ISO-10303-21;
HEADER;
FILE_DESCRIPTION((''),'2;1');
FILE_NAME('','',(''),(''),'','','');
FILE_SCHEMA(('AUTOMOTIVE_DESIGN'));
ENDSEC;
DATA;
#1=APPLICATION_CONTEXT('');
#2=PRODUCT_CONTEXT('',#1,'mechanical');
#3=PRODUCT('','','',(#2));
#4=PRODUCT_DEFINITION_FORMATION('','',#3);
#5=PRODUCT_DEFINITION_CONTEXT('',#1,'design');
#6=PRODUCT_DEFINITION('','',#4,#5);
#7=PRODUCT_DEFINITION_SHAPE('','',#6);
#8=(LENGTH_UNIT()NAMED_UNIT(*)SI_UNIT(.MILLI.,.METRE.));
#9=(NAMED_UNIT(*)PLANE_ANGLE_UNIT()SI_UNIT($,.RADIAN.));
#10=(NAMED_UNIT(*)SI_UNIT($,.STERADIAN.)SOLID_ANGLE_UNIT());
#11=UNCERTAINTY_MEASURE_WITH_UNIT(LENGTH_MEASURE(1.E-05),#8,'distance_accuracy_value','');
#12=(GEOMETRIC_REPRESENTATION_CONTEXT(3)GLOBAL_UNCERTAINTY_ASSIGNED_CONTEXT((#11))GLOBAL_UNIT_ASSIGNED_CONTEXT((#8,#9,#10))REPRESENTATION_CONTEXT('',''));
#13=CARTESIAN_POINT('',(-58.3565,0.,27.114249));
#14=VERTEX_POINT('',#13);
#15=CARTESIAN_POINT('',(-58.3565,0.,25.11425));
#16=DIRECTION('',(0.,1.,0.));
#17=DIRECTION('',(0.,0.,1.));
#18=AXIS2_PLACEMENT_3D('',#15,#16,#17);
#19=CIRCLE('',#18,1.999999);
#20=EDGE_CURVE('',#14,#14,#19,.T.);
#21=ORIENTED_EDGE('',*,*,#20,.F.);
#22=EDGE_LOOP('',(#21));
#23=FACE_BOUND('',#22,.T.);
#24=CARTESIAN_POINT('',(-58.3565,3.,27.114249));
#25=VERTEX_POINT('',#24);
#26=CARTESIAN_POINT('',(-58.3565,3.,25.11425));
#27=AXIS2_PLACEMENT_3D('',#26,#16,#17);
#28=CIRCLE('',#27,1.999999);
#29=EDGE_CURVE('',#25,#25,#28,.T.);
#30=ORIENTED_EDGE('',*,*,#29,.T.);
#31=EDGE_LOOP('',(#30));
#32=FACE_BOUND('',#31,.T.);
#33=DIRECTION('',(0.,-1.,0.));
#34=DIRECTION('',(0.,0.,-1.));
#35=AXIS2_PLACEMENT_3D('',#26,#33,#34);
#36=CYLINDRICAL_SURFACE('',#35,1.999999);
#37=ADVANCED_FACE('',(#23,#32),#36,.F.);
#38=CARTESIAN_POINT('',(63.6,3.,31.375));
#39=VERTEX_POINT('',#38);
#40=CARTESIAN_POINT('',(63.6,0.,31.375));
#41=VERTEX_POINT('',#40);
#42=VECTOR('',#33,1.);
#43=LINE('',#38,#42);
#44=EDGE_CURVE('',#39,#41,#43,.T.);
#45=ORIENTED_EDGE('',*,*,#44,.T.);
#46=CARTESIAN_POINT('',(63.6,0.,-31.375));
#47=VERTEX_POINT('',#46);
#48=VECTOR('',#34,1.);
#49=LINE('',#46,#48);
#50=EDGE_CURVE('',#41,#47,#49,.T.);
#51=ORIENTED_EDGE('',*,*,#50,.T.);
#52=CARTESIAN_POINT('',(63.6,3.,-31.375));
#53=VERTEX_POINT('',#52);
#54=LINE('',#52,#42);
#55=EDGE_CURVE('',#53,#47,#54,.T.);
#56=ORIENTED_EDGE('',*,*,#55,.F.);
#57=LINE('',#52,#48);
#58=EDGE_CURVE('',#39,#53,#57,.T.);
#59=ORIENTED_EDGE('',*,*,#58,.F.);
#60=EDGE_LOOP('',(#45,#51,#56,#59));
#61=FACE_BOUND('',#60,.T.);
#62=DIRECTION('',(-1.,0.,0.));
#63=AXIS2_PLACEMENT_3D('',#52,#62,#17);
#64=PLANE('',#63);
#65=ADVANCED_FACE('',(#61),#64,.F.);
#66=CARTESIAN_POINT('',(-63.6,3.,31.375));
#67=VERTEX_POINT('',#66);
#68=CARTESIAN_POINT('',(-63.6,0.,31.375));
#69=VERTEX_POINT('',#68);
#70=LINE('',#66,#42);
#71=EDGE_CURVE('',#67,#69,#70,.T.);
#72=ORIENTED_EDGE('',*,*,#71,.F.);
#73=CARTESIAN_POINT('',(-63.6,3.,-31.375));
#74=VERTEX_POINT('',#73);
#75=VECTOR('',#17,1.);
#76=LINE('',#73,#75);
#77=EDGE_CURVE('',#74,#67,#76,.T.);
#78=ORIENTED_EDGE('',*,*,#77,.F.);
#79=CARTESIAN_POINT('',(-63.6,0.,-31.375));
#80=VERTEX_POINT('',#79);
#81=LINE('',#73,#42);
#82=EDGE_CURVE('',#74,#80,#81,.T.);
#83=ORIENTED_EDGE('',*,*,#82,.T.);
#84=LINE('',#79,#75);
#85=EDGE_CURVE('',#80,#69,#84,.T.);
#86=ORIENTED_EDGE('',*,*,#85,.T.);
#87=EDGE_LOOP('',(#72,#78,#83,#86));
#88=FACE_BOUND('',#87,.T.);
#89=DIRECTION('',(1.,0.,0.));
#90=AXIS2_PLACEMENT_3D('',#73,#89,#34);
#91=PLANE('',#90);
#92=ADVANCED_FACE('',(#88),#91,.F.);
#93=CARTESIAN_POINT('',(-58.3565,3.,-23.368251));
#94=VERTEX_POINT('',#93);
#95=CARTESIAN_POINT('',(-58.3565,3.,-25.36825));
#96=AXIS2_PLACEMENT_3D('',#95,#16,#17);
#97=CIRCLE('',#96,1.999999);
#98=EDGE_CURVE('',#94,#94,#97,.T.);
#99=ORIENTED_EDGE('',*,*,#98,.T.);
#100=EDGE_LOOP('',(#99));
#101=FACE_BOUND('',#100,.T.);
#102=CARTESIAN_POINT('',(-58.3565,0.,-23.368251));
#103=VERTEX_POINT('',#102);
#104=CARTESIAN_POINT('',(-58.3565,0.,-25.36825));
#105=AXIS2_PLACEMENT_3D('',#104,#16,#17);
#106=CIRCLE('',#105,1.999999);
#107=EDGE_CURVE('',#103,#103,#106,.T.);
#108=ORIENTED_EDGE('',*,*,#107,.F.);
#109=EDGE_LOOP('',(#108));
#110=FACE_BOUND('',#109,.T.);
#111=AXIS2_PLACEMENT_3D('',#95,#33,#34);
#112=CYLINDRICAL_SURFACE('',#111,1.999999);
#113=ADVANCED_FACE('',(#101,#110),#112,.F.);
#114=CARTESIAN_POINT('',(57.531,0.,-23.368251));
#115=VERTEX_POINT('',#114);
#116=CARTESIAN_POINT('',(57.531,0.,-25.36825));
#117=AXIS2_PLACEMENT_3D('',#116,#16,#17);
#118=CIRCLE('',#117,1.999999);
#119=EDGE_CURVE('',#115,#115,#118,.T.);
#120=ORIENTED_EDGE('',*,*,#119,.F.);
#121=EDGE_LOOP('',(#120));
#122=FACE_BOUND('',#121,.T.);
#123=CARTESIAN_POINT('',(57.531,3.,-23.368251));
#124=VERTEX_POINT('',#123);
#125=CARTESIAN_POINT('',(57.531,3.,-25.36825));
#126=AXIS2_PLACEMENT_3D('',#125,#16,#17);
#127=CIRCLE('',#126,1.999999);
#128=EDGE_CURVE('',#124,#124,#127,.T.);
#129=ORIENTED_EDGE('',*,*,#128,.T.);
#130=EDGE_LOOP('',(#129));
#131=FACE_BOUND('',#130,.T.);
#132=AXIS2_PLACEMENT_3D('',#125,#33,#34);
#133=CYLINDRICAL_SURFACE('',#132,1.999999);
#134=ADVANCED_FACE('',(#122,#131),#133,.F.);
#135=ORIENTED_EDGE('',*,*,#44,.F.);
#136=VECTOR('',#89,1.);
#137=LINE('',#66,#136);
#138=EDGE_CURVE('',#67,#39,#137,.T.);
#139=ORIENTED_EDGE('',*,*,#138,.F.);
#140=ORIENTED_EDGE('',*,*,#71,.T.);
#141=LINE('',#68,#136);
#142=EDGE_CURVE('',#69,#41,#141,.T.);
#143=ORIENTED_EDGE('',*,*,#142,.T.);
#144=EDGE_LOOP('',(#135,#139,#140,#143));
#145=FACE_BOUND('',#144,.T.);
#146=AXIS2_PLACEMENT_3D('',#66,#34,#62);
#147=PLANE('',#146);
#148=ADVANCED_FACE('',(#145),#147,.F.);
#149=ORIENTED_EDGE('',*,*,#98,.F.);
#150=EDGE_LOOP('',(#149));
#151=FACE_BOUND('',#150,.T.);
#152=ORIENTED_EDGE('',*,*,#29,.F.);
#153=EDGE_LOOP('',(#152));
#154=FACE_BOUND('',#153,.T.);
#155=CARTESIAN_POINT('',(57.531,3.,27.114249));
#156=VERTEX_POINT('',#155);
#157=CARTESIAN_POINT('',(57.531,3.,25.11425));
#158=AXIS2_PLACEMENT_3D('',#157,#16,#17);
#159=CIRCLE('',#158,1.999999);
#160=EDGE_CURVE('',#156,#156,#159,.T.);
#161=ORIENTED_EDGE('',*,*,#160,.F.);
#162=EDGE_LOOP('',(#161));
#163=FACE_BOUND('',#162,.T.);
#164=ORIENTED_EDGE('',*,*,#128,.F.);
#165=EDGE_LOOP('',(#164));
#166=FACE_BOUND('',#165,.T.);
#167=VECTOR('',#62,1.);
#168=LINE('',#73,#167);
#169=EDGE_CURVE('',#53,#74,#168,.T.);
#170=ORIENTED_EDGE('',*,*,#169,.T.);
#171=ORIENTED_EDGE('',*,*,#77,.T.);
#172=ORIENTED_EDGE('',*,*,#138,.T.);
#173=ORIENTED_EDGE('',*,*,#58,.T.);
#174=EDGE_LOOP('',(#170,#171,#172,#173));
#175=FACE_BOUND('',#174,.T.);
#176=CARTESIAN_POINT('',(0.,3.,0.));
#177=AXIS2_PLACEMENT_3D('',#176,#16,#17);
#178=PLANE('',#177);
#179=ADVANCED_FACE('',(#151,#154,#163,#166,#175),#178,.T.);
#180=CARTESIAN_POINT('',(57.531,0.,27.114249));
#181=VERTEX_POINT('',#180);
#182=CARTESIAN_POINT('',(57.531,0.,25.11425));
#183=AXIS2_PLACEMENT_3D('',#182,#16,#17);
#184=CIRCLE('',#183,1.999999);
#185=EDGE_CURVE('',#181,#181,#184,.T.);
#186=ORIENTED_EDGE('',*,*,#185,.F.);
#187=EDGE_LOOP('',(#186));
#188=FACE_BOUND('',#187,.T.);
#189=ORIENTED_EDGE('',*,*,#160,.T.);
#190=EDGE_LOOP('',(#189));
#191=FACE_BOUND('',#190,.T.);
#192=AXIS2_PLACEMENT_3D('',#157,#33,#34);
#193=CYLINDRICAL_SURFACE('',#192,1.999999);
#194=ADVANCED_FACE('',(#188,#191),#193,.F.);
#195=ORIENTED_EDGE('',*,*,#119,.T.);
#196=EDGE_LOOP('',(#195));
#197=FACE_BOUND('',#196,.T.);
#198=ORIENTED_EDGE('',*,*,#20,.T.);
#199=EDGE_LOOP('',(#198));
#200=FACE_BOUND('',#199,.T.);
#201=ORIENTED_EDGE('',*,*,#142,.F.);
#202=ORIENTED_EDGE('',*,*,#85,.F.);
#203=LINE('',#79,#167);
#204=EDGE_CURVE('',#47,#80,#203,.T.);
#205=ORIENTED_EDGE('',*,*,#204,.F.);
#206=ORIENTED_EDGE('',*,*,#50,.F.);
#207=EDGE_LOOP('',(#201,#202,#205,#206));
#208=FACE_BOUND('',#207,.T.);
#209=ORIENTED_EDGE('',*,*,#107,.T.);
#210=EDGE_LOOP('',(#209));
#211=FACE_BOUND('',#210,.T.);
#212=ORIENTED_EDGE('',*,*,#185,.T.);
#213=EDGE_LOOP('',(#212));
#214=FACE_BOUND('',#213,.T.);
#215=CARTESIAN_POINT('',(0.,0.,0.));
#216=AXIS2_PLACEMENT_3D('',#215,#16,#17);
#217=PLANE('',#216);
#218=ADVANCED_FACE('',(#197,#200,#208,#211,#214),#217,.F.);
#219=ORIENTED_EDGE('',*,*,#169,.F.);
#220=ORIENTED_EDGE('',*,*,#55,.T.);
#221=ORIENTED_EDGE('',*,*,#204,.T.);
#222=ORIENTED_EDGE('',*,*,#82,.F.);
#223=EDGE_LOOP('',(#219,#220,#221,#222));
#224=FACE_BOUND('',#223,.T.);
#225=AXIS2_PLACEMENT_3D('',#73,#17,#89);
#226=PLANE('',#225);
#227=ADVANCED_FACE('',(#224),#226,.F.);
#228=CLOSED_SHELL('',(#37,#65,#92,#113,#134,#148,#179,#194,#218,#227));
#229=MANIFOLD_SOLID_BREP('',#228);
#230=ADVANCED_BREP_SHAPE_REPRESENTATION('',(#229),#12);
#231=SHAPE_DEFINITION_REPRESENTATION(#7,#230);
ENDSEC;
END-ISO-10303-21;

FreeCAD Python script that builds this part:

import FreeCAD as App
import Part
import Sketcher

V = App.Vector
Q = App.Units.Quantity


def add_polygon(sketch, points):
    """Adds a closed chain of lines whose ends are joined by coincident constraints."""
    first, n = sketch.GeometryCount, len(points)
    for a, b in zip(points, points[1:] + points[:1]):
        sketch.addGeometry(Part.LineSegment(App.Vector(*a, 0), App.Vector(*b, 0)), False)
    for i in range(n):
        sketch.addConstraint(Sketcher.Constraint("Coincident", first + i, 2, first + (i + 1) % n, 1))

doc = App.newDocument("Part")
body = doc.addObject("PartDesign::Body", "Body")

# Sketch on XZ plane
sketch1 = body.newObject("Sketcher::SketchObject", "Sketch")
sketch1.AttachmentSupport = (doc.getObject("XZ_Plane"), [""])
sketch1.MapMode = "FlatFace"
add_polygon(sketch1, [(-63.6, -31.4), (-63.6, 31.4), (63.6, 31.4), (63.6, -31.4)])  # lines 0-3
sketch1.addGeometry(Part.Circle(V(-58.4, 25.1, 0), V(0, 0, 1), 2), False)  # 4
sketch1.addGeometry(Part.Circle(V(57.5, 25.1, 0), V(0, 0, 1), 2), False)  # 5
sketch1.addGeometry(Part.Circle(V(-58.4, -25.4, 0), V(0, 0, 1), 2), False)  # 6
sketch1.addGeometry(Part.Circle(V(57.5, -25.4, 0), V(0, 0, 1), 2), False)  # 7
sketch1.addConstraint([
    Sketcher.Constraint("Vertical", 0),
    Sketcher.Constraint("Horizontal", 1),
    Sketcher.Constraint("Vertical", 2),
    Sketcher.Constraint("Horizontal", 3),
    Sketcher.Constraint("Equal", 4, 5),
    Sketcher.Constraint("Equal", 5, 6),
    Sketcher.Constraint("Equal", 6, 7),
    Sketcher.Constraint("Symmetric", 0, 2, 2, 2, -1, 1),
    Sketcher.Constraint("Horizontal", 4, 3, 5, 3),
    Sketcher.Constraint("Horizontal", 6, 3, 7, 3),
    Sketcher.Constraint("Vertical", 4, 3, 6, 3),
    Sketcher.Constraint("Vertical", 5, 3, 7, 3),
    Sketcher.Constraint("DistanceX", 1, 1, 1, 2, Q("127.2 mm")),
    Sketcher.Constraint("DistanceY", 0, 1, 0, 2, Q("62.75 mm")),
    Sketcher.Constraint("Diameter", 4, Q("3.999997 mm")),
    Sketcher.Constraint("DistanceX", -1, 1, 5, 3, Q("57.531 mm")),
    Sketcher.Constraint("DistanceX", 4, 3, -1, 1, Q("58.3565 mm")),
    Sketcher.Constraint("DistanceY", 6, 3, 4, 3, Q("50.4825 mm")),
    Sketcher.Constraint("DistanceY", -1, 1, 4, 3, Q("25.11425 mm")),
])
pad1 = body.newObject("PartDesign::Pad", "Pad")
pad1.Profile = sketch1
pad1.Length = 3
pad1.Reversed = True

doc.recompute()
